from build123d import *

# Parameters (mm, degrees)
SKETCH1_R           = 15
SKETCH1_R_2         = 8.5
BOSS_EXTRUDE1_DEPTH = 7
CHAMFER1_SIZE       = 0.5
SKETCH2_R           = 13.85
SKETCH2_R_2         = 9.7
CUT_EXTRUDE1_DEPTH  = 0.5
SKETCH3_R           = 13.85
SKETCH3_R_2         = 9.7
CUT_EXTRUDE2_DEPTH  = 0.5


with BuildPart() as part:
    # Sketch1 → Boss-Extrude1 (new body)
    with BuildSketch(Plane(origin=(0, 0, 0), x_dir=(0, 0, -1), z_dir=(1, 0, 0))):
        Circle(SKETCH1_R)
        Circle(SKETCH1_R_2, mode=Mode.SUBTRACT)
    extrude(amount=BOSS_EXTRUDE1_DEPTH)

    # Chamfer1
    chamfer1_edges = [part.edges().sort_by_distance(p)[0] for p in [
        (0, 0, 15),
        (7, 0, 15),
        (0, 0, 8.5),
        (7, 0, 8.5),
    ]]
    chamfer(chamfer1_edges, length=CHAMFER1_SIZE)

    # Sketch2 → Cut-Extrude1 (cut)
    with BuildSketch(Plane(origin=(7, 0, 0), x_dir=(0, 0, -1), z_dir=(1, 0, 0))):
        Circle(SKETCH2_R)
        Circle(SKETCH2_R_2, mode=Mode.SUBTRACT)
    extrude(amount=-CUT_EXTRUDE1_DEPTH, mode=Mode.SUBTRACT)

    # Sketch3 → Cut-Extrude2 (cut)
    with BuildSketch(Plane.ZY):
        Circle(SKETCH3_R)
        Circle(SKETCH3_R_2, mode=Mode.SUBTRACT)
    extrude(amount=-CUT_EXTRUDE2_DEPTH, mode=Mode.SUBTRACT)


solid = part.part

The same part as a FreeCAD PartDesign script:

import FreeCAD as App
import Part
import Sketcher
from FreeCAD import Vector
Q = App.Units.Quantity


def edges_at(feature, points):
    """Names of the edges that pass closest to the given points."""
    edges = feature.Shape.Edges
    near = lambda p: min(range(len(edges)), key=lambda i: edges[i].distToShape(Part.Vertex(*p))[0])
    return sorted({f"Edge{near(p) + 1}" for p in points})

doc = App.newDocument("Part")
body = doc.addObject("PartDesign::Body", "Body")

sketch1 = body.newObject("Sketcher::SketchObject", "Sketch")
sketch1.AttachmentSupport = (doc.getObject("YZ_Plane"), [""])
sketch1.MapMode = "FlatFace"
sketch1.addGeometry([
    Part.Circle(Vector(0, 0, 0), Vector(0, 0, 1), 15),
    Part.Circle(Vector(0, 0, 0), Vector(0, 0, 1), 8),
], False)
sketch1.addConstraint([
    Sketcher.Constraint("Coincident", 0, 3, -1, 1),
    Sketcher.Constraint("Coincident", 1, 3, -1, 1),
    Sketcher.Constraint("Diameter", 0, Q("30 mm")),
    Sketcher.Constraint("Diameter", 1, Q("17 mm")),
])
pad1 = body.newObject("PartDesign::Pad", "Pad")
pad1.Profile = sketch1
pad1.Length = 7
doc.recompute()

chamfer = body.newObject("PartDesign::Chamfer", "Chamfer")
chamfer.Base = (pad1, edges_at(pad1, [
    (0, 0, 15),
    (7, 0, 15),
    (0, 0, 8.5),
    (7, 0, 8.5),
]))
chamfer.Size = 0.5

sketch2 = body.newObject("Sketcher::SketchObject", "Sketch001")
sketch2.AttachmentSupport = (doc.getObject("YZ_Plane"), [""])
sketch2.MapMode = "FlatFace"
sketch2.AttachmentOffset = App.Placement(Vector(0, 0, 7), App.Rotation())
sketch2.addGeometry([
    Part.Circle(Vector(0, 0, 0), Vector(0, 0, 1), 14),
    Part.Circle(Vector(0, 0, 0), Vector(0, 0, 1), 10),
], False)
sketch2.addConstraint([
    Sketcher.Constraint("Coincident", 0, 3, -1, 1),
    Sketcher.Constraint("Coincident", 1, 3, -1, 1),
    Sketcher.Constraint("Diameter", 0, Q("27.7 mm")),
    Sketcher.Constraint("Diameter", 1, Q("19.4 mm")),
])
pocket1 = body.newObject("PartDesign::Pocket", "Pocket")
pocket1.Profile = sketch2
pocket1.Length = 0.5

sketch3 = body.newObject("Sketcher::SketchObject", "Sketch002")
sketch3.AttachmentSupport = (doc.getObject("YZ_Plane"), [""])
sketch3.MapMode = "FlatFace"
sketch3.addGeometry([
    Part.Circle(Vector(0, 0, 0), Vector(0, 0, 1), 14),
    Part.Circle(Vector(0, 0, 0), Vector(0, 0, 1), 10),
], False)
sketch3.addConstraint([
    Sketcher.Constraint("Coincident", 0, 3, -1, 1),
    Sketcher.Constraint("Coincident", 1, 3, -1, 1),
    Sketcher.Constraint("Diameter", 0, Q("27.7 mm")),
    Sketcher.Constraint("Diameter", 1, Q("19.4 mm")),
])
pocket2 = body.newObject("PartDesign::Pocket", "Pocket001")
pocket2.Profile = sketch3
pocket2.Length = 0.5
pocket2.Reversed = True

doc.recompute()
